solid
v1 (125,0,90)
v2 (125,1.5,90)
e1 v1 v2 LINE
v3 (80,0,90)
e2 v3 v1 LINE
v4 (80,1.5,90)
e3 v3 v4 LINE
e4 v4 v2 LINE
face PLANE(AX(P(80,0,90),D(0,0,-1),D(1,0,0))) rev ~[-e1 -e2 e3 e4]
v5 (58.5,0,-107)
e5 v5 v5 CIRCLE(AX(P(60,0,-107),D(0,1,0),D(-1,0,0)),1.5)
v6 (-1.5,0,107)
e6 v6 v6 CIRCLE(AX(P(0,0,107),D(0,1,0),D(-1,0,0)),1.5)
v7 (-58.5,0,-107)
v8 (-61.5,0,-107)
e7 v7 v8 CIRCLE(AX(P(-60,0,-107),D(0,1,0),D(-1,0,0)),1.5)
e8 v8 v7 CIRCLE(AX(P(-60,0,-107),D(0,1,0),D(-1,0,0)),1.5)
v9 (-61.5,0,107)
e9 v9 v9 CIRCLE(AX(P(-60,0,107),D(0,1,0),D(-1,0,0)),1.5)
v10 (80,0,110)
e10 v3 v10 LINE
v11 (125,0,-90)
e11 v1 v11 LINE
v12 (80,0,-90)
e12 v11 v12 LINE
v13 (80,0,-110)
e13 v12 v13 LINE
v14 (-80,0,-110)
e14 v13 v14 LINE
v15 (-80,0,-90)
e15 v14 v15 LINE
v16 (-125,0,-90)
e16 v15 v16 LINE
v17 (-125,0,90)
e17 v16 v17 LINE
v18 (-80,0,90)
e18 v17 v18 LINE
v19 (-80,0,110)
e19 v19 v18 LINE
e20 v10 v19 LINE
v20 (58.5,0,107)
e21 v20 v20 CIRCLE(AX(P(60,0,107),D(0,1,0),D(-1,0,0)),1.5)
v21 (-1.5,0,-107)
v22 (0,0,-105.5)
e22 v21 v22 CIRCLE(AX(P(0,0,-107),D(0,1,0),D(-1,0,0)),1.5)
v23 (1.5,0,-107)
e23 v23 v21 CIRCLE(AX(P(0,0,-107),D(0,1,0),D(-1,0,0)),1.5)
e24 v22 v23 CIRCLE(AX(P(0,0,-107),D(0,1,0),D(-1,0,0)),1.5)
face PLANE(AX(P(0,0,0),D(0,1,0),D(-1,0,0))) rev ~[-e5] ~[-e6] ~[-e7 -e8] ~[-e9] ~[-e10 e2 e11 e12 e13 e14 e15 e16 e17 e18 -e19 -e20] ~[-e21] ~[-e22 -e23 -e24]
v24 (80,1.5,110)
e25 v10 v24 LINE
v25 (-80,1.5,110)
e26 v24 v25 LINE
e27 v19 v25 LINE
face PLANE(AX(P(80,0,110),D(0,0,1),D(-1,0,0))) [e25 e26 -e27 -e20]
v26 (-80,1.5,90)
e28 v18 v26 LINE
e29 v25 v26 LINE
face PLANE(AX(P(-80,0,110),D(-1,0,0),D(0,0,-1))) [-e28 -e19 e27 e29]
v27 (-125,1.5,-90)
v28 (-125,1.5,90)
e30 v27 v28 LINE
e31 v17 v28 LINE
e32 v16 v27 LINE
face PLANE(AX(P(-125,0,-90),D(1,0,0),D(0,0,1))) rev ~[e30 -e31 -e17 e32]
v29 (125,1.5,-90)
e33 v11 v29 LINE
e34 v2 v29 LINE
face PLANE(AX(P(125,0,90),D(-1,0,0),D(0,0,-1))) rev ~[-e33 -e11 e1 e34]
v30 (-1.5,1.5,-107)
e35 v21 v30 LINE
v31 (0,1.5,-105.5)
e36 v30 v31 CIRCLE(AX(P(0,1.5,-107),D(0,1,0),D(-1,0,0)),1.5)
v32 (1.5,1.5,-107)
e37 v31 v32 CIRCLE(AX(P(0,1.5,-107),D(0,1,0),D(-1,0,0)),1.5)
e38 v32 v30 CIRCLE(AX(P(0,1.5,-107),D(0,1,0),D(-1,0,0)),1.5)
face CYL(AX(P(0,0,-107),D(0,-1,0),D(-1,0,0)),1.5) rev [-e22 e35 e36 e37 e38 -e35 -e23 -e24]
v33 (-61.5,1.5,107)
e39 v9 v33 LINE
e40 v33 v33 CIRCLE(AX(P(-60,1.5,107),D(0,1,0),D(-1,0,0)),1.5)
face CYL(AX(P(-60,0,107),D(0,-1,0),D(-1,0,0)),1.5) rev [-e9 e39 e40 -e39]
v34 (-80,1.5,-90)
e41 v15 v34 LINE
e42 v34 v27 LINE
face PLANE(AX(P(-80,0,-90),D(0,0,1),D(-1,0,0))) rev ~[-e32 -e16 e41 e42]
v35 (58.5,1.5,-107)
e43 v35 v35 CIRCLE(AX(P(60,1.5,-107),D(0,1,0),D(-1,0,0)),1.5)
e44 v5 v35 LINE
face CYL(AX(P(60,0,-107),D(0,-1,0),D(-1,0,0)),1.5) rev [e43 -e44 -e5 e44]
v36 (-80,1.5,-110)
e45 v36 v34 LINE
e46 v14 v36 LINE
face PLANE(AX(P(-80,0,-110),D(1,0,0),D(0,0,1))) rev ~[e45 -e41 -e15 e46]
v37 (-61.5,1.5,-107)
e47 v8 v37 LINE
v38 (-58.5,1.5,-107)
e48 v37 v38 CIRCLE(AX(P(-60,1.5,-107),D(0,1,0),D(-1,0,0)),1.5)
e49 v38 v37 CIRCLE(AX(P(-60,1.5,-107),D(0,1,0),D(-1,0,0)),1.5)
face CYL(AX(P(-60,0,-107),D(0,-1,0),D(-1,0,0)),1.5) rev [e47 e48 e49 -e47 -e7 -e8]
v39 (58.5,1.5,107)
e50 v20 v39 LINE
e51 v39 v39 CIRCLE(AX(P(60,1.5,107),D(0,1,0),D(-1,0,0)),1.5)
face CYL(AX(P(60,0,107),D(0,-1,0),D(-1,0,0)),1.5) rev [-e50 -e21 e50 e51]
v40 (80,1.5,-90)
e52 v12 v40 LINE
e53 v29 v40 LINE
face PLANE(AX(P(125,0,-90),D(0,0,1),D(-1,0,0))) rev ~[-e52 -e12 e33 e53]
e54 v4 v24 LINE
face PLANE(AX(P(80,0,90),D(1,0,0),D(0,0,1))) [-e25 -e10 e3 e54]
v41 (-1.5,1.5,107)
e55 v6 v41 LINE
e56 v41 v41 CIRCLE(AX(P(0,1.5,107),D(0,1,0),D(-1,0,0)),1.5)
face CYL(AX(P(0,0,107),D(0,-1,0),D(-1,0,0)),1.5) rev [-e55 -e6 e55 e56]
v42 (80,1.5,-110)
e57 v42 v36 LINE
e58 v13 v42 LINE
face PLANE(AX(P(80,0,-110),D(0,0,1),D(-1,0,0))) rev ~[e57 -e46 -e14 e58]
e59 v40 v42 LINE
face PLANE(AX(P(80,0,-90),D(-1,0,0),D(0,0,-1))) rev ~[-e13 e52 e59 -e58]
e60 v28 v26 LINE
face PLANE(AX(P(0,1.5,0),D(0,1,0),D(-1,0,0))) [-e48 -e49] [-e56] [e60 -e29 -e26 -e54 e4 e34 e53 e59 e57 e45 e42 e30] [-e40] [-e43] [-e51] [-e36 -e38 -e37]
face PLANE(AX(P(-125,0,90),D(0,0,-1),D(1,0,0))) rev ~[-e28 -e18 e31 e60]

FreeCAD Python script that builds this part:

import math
import FreeCAD as App
import Part
import Sketcher
Q = App.Units.Quantity


def add_polygon(sketch, points):
    """Adds a closed chain of lines whose ends are joined by coincident constraints."""
    first, n = sketch.GeometryCount, len(points)
    for a, b in zip(points, points[1:] + points[:1]):
        sketch.addGeometry(Part.LineSegment(App.Vector(*a, 0), App.Vector(*b, 0)), False)
    for i in range(n):
        sketch.addConstraint(Sketcher.Constraint("Coincident", first + i, 2, first + (i + 1) % n, 1))

doc = App.newDocument("Part")
params = doc.addObject("Spreadsheet::Sheet", "Params")
for row, (alias, value) in enumerate([
    ("sketch1_diameter", "3 mm"),
    ("sketch1_width", "160 mm"),
    ("sketch1_height", "180 mm"),
    ("sketch1_height2", "20 mm"),
    ("sketch1_width2", "45 mm"),
    ("pad1_length", "1.5 mm"),
], start=1):
    params.set(f"A{row}", alias)
    params.set(f"B{row}", "=" + value)
    params.setAlias(f"B{row}", alias)

body = doc.addObject("PartDesign::Body", "Body")

# Sketch on XZ plane
sketch1 = body.newObject("Sketcher::SketchObject", "Sketch")
sketch1.AttachmentSupport = (doc.getObject("XZ_Plane"), [""])
sketch1.MapMode = "FlatFace"
add_polygon(sketch1, [(-125, -90), (-125, 90), (-80, 90), (-80, 110), (80, 110), (80, 90), (125, 90), (125, -90), (80, -90), (80, -110), (-80, -110), (-80, -90)])  # lines 0-11
sketch1.addGeometry(Part.Circle(App.Vector(60, -107, 0), App.Vector(0, 0, 1), 1.5), False)  # 12
sketch1.addGeometry(Part.ArcOfCircle(Part.Circle(App.Vector(0, -107, 0), App.Vector(0, 0, 1), 1.5), math.radians(0), math.radians(90)), False)  # 13
sketch1.addGeometry(Part.ArcOfCircle(Part.Circle(App.Vector(0, -107, 0), App.Vector(0, 0, 1), 1.5), math.radians(90), math.radians(180)), False)  # 14
sketch1.addGeometry(Part.ArcOfCircle(Part.Circle(App.Vector(0, -107, 0), App.Vector(0, 0, 1), 1.5), math.radians(180), math.radians(360)), False)  # 15
sketch1.addGeometry(Part.Circle(App.Vector(-60, -107, 0), App.Vector(0, 0, 1), 1.5), False)  # 16
sketch1.addGeometry(Part.Circle(App.Vector(0, 107, 0), App.Vector(0, 0, 1), 1.5), False)  # 17
sketch1.addGeometry(Part.Circle(App.Vector(-60, 107, 0), App.Vector(0, 0, 1), 1.5), False)  # 18
sketch1.addGeometry(Part.Circle(App.Vector(60, 107, 0), App.Vector(0, 0, 1), 1.5), False)  # 19
sketch1.addConstraint([
    Sketcher.Constraint("Tangent", 13, 2, 14, 1),
    Sketcher.Constraint("Tangent", 14, 2, 15, 1),
    Sketcher.Constraint("Tangent", 15, 2, 13, 1),
    Sketcher.Constraint("Vertical", 0),
    Sketcher.Constraint("Horizontal", 1),
    Sketcher.Constraint("Vertical", 2),
    Sketcher.Constraint("Horizontal", 3),
    Sketcher.Constraint("Vertical", 4),
    Sketcher.Constraint("Horizontal", 5),
    Sketcher.Constraint("Vertical", 6),
    Sketcher.Constraint("Horizontal", 7),
    Sketcher.Constraint("Vertical", 8),
    Sketcher.Constraint("Horizontal", 9),
    Sketcher.Constraint("Vertical", 10),
    Sketcher.Constraint("Horizontal", 11),
    Sketcher.Constraint("Equal", 12, 13),
    Sketcher.Constraint("Equal", 15, 16),
    Sketcher.Constraint("Equal", 16, 17),
    Sketcher.Constraint("Equal", 17, 18),
    Sketcher.Constraint("Equal", 18, 19),
    Sketcher.Constraint("Symmetric", 13, 3, 17, 3, -1, 1),
    Sketcher.Constraint("Symmetric", 12, 3, 18, 3, -1, 1),
    Sketcher.Constraint("Symmetric", 16, 3, 19, 3, -1, 1),
    Sketcher.Constraint("Symmetric", 0, 2, 6, 2, -1, 1),
    Sketcher.Constraint("Symmetric", 2, 2, 8, 2, -1, 1),
    Sketcher.Constraint("Symmetric", 4, 2, 10, 2, -1, 1),
    Sketcher.Constraint("Symmetric", 12, 3, 16, 3, -2),
    Sketcher.Constraint("Symmetric", 1, 2, 4, 2, -2),
    Sketcher.Constraint("Symmetric", 14, 2, 15, 2, -2),
    Sketcher.Constraint("PointOnObject", 13, 2, -2),
    Sketcher.Constraint("Horizontal", 12, 3, 13, 3),
    Sketcher.Constraint("Horizontal", 16, 3, 14, 2),
    Sketcher.Constraint("Diameter", 12, Q("3 mm")),
    Sketcher.Constraint("DistanceX", 3, 1, 3, 2, Q("160 mm")),
    Sketcher.Constraint("DistanceY", 0, 1, 0, 2, Q("180 mm")),
    Sketcher.Constraint("DistanceY", 2, 1, 2, 2, Q("20 mm")),
    Sketcher.Constraint("DistanceX", -1, 1, 12, 3, Q("60 mm")),
    Sketcher.Constraint("DistanceY", 18, 3, 2, 2, Q("3 mm")),
    Sketcher.Constraint("DistanceX", 1, 1, 1, 2, Q("45 mm")),
])
sketch1.setExpression("Constraints[44]", "Params.sketch1_diameter")
sketch1.setExpression("Constraints[45]", "Params.sketch1_width")
sketch1.setExpression("Constraints[46]", "Params.sketch1_height")
sketch1.setExpression("Constraints[47]", "Params.sketch1_height2")
sketch1.setExpression("Constraints[50]", "Params.sketch1_width2")
pad1 = body.newObject("PartDesign::Pad", "Pad")
pad1.Profile = sketch1
pad1.setExpression("Length", "Params.pad1_length")
pad1.Reversed = True

doc.recompute()
